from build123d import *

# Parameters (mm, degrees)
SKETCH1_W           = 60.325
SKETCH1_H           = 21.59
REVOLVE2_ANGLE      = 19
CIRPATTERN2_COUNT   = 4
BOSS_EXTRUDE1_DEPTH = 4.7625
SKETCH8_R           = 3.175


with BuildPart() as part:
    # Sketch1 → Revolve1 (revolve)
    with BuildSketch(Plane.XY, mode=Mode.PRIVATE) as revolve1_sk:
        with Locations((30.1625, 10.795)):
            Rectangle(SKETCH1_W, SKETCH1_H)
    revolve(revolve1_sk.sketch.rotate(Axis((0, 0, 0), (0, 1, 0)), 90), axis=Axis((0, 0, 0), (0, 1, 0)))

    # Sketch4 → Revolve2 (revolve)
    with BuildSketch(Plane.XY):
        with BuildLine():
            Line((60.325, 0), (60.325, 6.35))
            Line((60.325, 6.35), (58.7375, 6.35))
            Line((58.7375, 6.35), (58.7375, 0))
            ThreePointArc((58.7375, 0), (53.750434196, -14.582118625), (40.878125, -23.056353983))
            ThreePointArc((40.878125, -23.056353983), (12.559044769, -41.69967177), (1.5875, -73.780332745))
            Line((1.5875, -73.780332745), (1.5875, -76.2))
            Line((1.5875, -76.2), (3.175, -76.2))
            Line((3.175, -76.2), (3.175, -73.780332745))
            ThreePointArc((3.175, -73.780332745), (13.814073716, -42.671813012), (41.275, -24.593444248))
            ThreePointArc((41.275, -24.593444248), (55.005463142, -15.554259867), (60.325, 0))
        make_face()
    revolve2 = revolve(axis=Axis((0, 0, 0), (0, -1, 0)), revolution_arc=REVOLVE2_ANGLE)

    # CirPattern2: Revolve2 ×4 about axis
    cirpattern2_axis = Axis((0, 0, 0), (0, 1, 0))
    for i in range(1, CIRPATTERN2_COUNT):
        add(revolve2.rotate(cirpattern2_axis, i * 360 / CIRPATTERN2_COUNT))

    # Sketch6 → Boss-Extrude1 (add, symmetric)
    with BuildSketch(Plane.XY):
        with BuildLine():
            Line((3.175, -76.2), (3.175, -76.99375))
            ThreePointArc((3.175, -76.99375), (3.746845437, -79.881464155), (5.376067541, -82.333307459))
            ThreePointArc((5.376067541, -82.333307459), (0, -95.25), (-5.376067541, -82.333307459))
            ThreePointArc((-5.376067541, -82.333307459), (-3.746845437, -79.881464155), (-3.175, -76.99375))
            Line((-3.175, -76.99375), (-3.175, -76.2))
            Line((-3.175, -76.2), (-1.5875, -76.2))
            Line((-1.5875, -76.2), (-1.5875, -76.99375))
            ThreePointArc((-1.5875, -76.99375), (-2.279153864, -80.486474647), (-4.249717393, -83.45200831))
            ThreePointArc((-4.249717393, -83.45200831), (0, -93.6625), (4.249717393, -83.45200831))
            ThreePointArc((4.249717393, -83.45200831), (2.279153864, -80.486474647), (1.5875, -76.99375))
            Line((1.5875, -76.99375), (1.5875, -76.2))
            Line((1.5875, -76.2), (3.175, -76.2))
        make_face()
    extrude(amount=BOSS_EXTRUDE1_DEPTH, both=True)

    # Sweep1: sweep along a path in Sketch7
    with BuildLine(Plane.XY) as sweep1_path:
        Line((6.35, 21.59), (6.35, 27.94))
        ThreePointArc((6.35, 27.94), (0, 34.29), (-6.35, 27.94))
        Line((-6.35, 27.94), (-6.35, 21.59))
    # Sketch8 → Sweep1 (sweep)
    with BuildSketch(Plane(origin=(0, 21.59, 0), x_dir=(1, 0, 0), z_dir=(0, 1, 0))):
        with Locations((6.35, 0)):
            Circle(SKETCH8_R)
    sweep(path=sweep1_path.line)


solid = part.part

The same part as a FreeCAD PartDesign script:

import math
import FreeCAD as App
import Part
import Sketcher
from FreeCAD import Vector
Q = App.Units.Quantity


def add_polygon(sketch, points):
    """Adds a closed chain of lines whose ends are joined by coincident constraints."""
    first, n = sketch.GeometryCount, len(points)
    for a, b in zip(points, points[1:] + points[:1]):
        sketch.addGeometry(Part.LineSegment(App.Vector(*a, 0), App.Vector(*b, 0)), False)
    for i in range(n):
        sketch.addConstraint(Sketcher.Constraint("Coincident", first + i, 2, first + (i + 1) % n, 1))

doc = App.newDocument("Part")
body = doc.addObject("PartDesign::Body", "Body")

# Sketch on XY plane
sketch1 = doc.addObject("Sketcher::SketchObject", "Sketch")
body.addObject(sketch1)
sketch1.AttachmentSupport = (doc.XY_Plane, [""])
sketch1.MapMode = "FlatFace"
add_polygon(sketch1, [(0, 22), (0, 0), (60, 0), (60, 22)])  # lines 0-3
sketch1.addConstraint(Sketcher.Constraint("Vertical", 0))
sketch1.addConstraint(Sketcher.Constraint("Horizontal", 1))
sketch1.addConstraint(Sketcher.Constraint("Vertical", 2))
sketch1.addConstraint(Sketcher.Constraint("Horizontal", 3))
sketch1.addConstraint(Sketcher.Constraint("Coincident", 0, 2, -1, 1))
sketch1.addConstraint(Sketcher.Constraint("DistanceY", 0, 2, 0, 1, Q("0.85 in")))
sketch1.addConstraint(Sketcher.Constraint("DistanceX", 1, 1, 1, 2, Q("2.375 in")))
revolution = doc.addObject("PartDesign::Revolution", "Revolution")
body.addObject(revolution)
revolution.Profile = sketch1
revolution.ReferenceAxis = (sketch1, ["V_Axis"])
revolution.Angle = 360

# Sketch on XY plane
sketch2 = doc.addObject("Sketcher::SketchObject", "Sketch001")
body.addObject(sketch2)
sketch2.AttachmentSupport = (doc.XY_Plane, [""])
sketch2.MapMode = "FlatFace"
sketch2.addGeometry(Part.LineSegment(Vector(60.3, 0, 0), Vector(60.3, 6.3, 0)), False)
sketch2.addGeometry(Part.LineSegment(Vector(60.3, 6.3, 0), Vector(58.7, 6.3, 0)), False)
sketch2.addGeometry(Part.LineSegment(Vector(58.7, 6.3, 0), Vector(58.7, 0, 0)), False)
sketch2.addGeometry(Part.ArcOfCircle(Part.Circle(Vector(34.9, 0, 0), Vector(0, 0, 1), 23.8), math.radians(-76), math.radians(0)), False)
sketch2.addGeometry(Part.ArcOfCircle(Part.Circle(Vector(54, -73.8, 0), Vector(0, 0, 1), 52.4), math.radians(104), math.radians(180)), False)
sketch2.addGeometry(Part.LineSegment(Vector(1.6, -73.8, 0), Vector(1.6, -76.2, 0)), False)
sketch2.addGeometry(Part.LineSegment(Vector(1.6, -76.2, 0), Vector(3.2, -76.2, 0)), False)
sketch2.addGeometry(Part.LineSegment(Vector(3.2, -76.2, 0), Vector(3.2, -73.8, 0)), False)
sketch2.addGeometry(Part.ArcOfCircle(Part.Circle(Vector(54, -73.8, 0), Vector(0, 0, 1), 50.8), math.radians(104), math.radians(180)), False)
sketch2.addGeometry(Part.ArcOfCircle(Part.Circle(Vector(34.9, 0, 0), Vector(0, 0, 1), 25.4), math.radians(-76), math.radians(0)), False)
sketch2.addConstraint(Sketcher.Constraint("Coincident", 0, 2, 1, 1))
sketch2.addConstraint(Sketcher.Constraint("Coincident", 1, 2, 2, 1))
sketch2.addConstraint(Sketcher.Constraint("Tangent", 2, 2, 3, 2))
sketch2.addConstraint(Sketcher.Constraint("Tangent", 3, 1, 4, 1))
sketch2.addConstraint(Sketcher.Constraint("Tangent", 4, 2, 5, 1))
sketch2.addConstraint(Sketcher.Constraint("Coincident", 5, 2, 6, 1))
sketch2.addConstraint(Sketcher.Constraint("Coincident", 6, 2, 7, 1))
sketch2.addConstraint(Sketcher.Constraint("Tangent", 7, 2, 8, 2))
sketch2.addConstraint(Sketcher.Constraint("Tangent", 8, 1, 9, 1))
sketch2.addConstraint(Sketcher.Constraint("Tangent", 9, 2, 0, 1))
sketch2.addConstraint(Sketcher.Constraint("Vertical", 0))
sketch2.addConstraint(Sketcher.Constraint("Horizontal", 1))
sketch2.addConstraint(Sketcher.Constraint("Vertical", 2))
sketch2.addConstraint(Sketcher.Constraint("Vertical", 5))
sketch2.addConstraint(Sketcher.Constraint("Horizontal", 6))
sketch2.addConstraint(Sketcher.Constraint("Vertical", 7))
sketch2.addConstraint(Sketcher.Constraint("Coincident", 8, 3, 4, 3))
sketch2.addConstraint(Sketcher.Constraint("Coincident", 9, 3, 3, 3))
sketch2.addConstraint(Sketcher.Constraint("PointOnObject", 3, 3, -1))
sketch2.addConstraint(Sketcher.Constraint("Radius", 8, Q("2 in")))
sketch2.addConstraint(Sketcher.Constraint("Radius", 9, Q("1 in")))
sketch2.addConstraint(Sketcher.Constraint("DistanceY", 5, 2, -1, 1, Q("3 in")))
sketch2.addConstraint(Sketcher.Constraint("Radius", 3, Q("0.9375 in")))
sketch2.addConstraint(Sketcher.Constraint("DistanceY", 0, 1, 0, 2, Q("0.25 in")))
sketch2.addConstraint(Sketcher.Constraint("DistanceX", 3, 3, 4, 3, Q("0.75 in")))
sketch2.addConstraint(Sketcher.Constraint("DistanceX", -1, 1, 3, 3, Q("1.375 in")))
revolution2 = doc.addObject("PartDesign::Revolution", "Revolution001")
body.addObject(revolution2)
revolution2.Profile = sketch2
revolution2.ReferenceAxis = (sketch2, ["V_Axis"])
revolution2.Angle = 19
revolution2.Reversed = True
doc.recompute()

polarpattern = doc.addObject("PartDesign::PolarPattern", "PolarPattern")
body.addObject(polarpattern)
polarpattern.Originals = [revolution2]
polarpattern.Axis = (doc.Y_Axis, [""])
polarpattern.Angle = 360
polarpattern.Occurrences = 4
body.Tip = polarpattern

# Sketch on XY plane
sketch3 = doc.addObject("Sketcher::SketchObject", "Sketch002")
body.addObject(sketch3)
sketch3.AttachmentSupport = (doc.XY_Plane, [""])
sketch3.MapMode = "FlatFace"
sketch3.addGeometry(Part.LineSegment(Vector(3.2, -77, 0), Vector(3.2, -76.2, 0)), False)
sketch3.addGeometry(Part.LineSegment(Vector(3.2, -76.2, 0), Vector(1.6, -76.2, 0)), False)
sketch3.addGeometry(Part.LineSegment(Vector(1.6, -76.2, 0), Vector(1.6, -77, 0)), False)
sketch3.addGeometry(Part.ArcOfCircle(Part.Circle(Vector(10.8, -77, 0), Vector(0, 0, 1), 9.2), math.radians(-180), math.radians(-135)), False)
sketch3.addGeometry(Part.ArcOfCircle(Part.Circle(Vector(0, -87.7, 0), Vector(0, 0, 1), 6), math.radians(135), math.radians(405)), False)
sketch3.addGeometry(Part.ArcOfCircle(Part.Circle(Vector(-10.8, -77, 0), Vector(0, 0, 1), 9.2), math.radians(-45), math.radians(0)), False)
sketch3.addGeometry(Part.LineSegment(Vector(-1.6, -77, 0), Vector(-1.6, -76.2, 0)), False)
sketch3.addGeometry(Part.LineSegment(Vector(-1.6, -76.2, 0), Vector(-3.2, -76.2, 0)), False)
sketch3.addGeometry(Part.LineSegment(Vector(-3.2, -76.2, 0), Vector(-3.2, -77, 0)), False)
sketch3.addGeometry(Part.ArcOfCircle(Part.Circle(Vector(-10.8, -77, 0), Vector(0, 0, 1), 7.6), math.radians(-45), math.radians(0)), False)
sketch3.addGeometry(Part.ArcOfCircle(Part.Circle(Vector(0, -87.7, 0), Vector(0, 0, 1), 7.6), math.radians(135), math.radians(405)), False)
sketch3.addGeometry(Part.ArcOfCircle(Part.Circle(Vector(10.8, -77, 0), Vector(0, 0, 1), 7.6), math.radians(-180), math.radians(-135)), False)
sketch3.addConstraint(Sketcher.Constraint("Coincident", 0, 2, 1, 1))
sketch3.addConstraint(Sketcher.Constraint("Coincident", 1, 2, 2, 1))
sketch3.addConstraint(Sketcher.Constraint("Tangent", 2, 2, 3, 1))
sketch3.addConstraint(Sketcher.Constraint("Tangent", 3, 2, 4, 2))
sketch3.addConstraint(Sketcher.Constraint("Tangent", 4, 1, 5, 1))
sketch3.addConstraint(Sketcher.Constraint("Tangent", 5, 2, 6, 1))
sketch3.addConstraint(Sketcher.Constraint("Coincident", 6, 2, 7, 1))
sketch3.addConstraint(Sketcher.Constraint("Coincident", 7, 2, 8, 1))
sketch3.addConstraint(Sketcher.Constraint("Tangent", 8, 2, 9, 2))
sketch3.addConstraint(Sketcher.Constraint("Tangent", 9, 1, 10, 1))
sketch3.addConstraint(Sketcher.Constraint("Tangent", 10, 2, 11, 2))
sketch3.addConstraint(Sketcher.Constraint("Tangent", 11, 1, 0, 1))
sketch3.addConstraint(Sketcher.Constraint("Vertical", 0))
sketch3.addConstraint(Sketcher.Constraint("Horizontal", 1))
sketch3.addConstraint(Sketcher.Constraint("Vertical", 2))
sketch3.addConstraint(Sketcher.Constraint("Vertical", 6))
sketch3.addConstraint(Sketcher.Constraint("Horizontal", 7))
sketch3.addConstraint(Sketcher.Constraint("Vertical", 8))
sketch3.addConstraint(Sketcher.Constraint("Coincident", 9, 3, 5, 3))
sketch3.addConstraint(Sketcher.Constraint("Coincident", 10, 3, 4, 3))
sketch3.addConstraint(Sketcher.Constraint("Coincident", 11, 3, 3, 3))
sketch3.addConstraint(Sketcher.Constraint("Equal", 3, 5))
sketch3.addConstraint(Sketcher.Constraint("Equal", 9, 10))
sketch3.addConstraint(Sketcher.Constraint("Symmetric", 3, 3, 5, 3, -2))
sketch3.addConstraint(Sketcher.Constraint("Horizontal", 1, 2, 6, 2))
sketch3.addConstraint(Sketcher.Constraint("DistanceY", 0, 2, -1, 1, Q("3 in")))
sketch3.addConstraint(Sketcher.Constraint("DistanceX", 1, 2, 1, 1, Q("0.0625 in")))
sketch3.addConstraint(Sketcher.Constraint("DistanceY", 0, 1, 0, 2, Q("0.03125 in")))
sketch3.addConstraint(Sketcher.Constraint("DistanceX", 7, 2, 0, 2, Q("0.25 in")))
sketch3.addConstraint(Sketcher.Constraint("Radius", 3, 9.164635))
pad1 = doc.addObject("PartDesign::Pad", "Pad")
body.addObject(pad1)
pad1.Profile = sketch3
pad1.Length = Q("0.375 in")
pad1.Midplane = True

# Sketch on XZ plane
sketch4 = doc.addObject("Sketcher::SketchObject", "Sketch003")
body.addObject(sketch4)
sketch4.AttachmentSupport = (doc.XZ_Plane, [""])
sketch4.MapMode = "FlatFace"
sketch4.AttachmentOffset = App.Placement(Vector(0, 0, -0.85 * 25.4), App.Rotation())
sketch4.addGeometry(Part.Circle(Vector(6.3, 0, 0), Vector(0, 0, 1), 3.2), False)
sketch4.addConstraint(Sketcher.Constraint("PointOnObject", 0, 3, -1))
sketch4.addConstraint(Sketcher.Constraint("Diameter", 0, Q("0.25 in")))
sketch4.addConstraint(Sketcher.Constraint("DistanceX", -1, 1, 0, 3, Q("0.25 in")))

# Sketch on XY plane
sketch5 = doc.addObject("Sketcher::SketchObject", "Sketch004")
body.addObject(sketch5)
sketch5.AttachmentSupport = (doc.XY_Plane, [""])
sketch5.MapMode = "FlatFace"
sketch5.addGeometry(Part.LineSegment(Vector(6, 22, 0), Vector(6, 28, 0)), False)
sketch5.addGeometry(Part.ArcOfCircle(Part.Circle(Vector(0, 28, 0), Vector(0, 0, 1), 6), math.radians(0), math.radians(180)), False)
sketch5.addGeometry(Part.LineSegment(Vector(-6, 28, 0), Vector(-6, 22, 0)), False)
sketch5.addConstraint(Sketcher.Constraint("Tangent", 0, 2, 1, 1))
sketch5.addConstraint(Sketcher.Constraint("Tangent", 1, 2, 2, 1))
sketch5.addConstraint(Sketcher.Constraint("Vertical", 0))
sketch5.addConstraint(Sketcher.Constraint("Vertical", 2))
sketch5.addConstraint(Sketcher.Constraint("Symmetric", 0, 1, 2, 2, -2))
sketch5.addConstraint(Sketcher.Constraint("Radius", 1, Q("0.25 in")))
sketch5.addConstraint(Sketcher.Constraint("DistanceY", 0, 1, 0, 2, Q("0.25 in")))
sketch5.addConstraint(Sketcher.Constraint("DistanceY", -1, 1, 1, 3, Q("1.1 in")))
doc.recompute()

additivepipe = doc.addObject("PartDesign::AdditivePipe", "AdditivePipe")
body.addObject(additivepipe)
additivepipe.Profile = sketch4
additivepipe.Spine = (sketch5, ["Edge1", "Edge2", "Edge3"])

doc.recompute()
